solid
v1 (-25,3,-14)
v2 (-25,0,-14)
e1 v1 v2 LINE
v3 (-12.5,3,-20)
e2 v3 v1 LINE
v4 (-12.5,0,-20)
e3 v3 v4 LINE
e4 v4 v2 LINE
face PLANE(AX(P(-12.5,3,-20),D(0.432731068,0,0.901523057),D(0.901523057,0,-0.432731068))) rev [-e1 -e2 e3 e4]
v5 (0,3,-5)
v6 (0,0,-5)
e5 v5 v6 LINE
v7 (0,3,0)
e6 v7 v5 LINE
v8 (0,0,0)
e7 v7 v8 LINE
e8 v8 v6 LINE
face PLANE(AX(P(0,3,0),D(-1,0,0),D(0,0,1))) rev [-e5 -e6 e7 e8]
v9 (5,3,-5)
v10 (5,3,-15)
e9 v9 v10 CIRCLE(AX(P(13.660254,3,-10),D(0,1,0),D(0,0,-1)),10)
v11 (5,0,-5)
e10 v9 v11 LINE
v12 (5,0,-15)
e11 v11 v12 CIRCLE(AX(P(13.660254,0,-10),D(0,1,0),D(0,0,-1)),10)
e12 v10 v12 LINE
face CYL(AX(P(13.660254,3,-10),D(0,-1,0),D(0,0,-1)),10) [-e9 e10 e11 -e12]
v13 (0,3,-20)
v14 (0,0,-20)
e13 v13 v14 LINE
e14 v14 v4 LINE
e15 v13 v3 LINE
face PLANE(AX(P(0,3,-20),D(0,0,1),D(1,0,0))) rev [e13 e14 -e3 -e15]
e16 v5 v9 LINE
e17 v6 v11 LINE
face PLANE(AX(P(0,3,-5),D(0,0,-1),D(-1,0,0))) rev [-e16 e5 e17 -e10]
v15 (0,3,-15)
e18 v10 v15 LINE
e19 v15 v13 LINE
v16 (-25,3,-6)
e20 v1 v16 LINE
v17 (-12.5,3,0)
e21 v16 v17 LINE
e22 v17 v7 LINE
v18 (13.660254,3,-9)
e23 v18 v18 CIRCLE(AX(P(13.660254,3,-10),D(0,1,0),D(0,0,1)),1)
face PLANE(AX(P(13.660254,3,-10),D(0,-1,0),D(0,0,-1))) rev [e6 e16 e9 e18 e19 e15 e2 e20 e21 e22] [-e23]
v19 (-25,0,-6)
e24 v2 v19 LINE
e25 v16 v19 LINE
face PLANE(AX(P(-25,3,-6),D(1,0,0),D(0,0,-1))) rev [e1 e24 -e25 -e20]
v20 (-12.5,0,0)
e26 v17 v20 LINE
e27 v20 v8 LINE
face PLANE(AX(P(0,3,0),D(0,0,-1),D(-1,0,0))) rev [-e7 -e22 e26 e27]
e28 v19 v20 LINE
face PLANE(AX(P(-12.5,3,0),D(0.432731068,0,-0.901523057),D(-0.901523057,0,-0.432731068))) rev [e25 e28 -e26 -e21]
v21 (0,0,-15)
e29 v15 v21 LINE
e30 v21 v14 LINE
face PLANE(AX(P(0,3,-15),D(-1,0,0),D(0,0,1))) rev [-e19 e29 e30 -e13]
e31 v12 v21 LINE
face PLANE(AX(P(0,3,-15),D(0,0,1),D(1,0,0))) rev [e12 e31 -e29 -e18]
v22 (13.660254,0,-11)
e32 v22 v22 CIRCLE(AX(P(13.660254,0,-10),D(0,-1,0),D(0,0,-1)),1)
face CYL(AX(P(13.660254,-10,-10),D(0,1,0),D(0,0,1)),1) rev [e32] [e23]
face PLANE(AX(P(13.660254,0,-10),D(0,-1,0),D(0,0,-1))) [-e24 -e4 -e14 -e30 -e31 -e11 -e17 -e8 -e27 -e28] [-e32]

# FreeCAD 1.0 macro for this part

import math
import FreeCAD as App
import Part
import Sketcher
from FreeCAD import Vector

doc = App.newDocument("Part")
params = doc.addObject("Spreadsheet::Sheet", "Params")
for row, (alias, value) in enumerate([
    ("sketch1_radius", "10 mm"),
    ("sketch1_width", "5 mm"),
    ("sketch1_height", "8 mm"),
    ("sketch1_width2", "12.5 mm"),
    ("pad1_length", "3 mm"),
    ("sketch2_diameter", "2 mm"),
    ("pocket1_length", "13 mm"),
], start=1):
    params.set(f"A{row}", alias)
    params.set(f"B{row}", "=" + value)
    params.setAlias(f"B{row}", alias)

body = doc.addObject("PartDesign::Body", "Body")

# Sketch on XZ plane
sketch1 = doc.addObject("Sketcher::SketchObject", "Sketch")
body.addObject(sketch1)
sketch1.AttachmentSupport = (doc.XZ_Plane, [""])
sketch1.MapMode = "FlatFace"
sketch1.addGeometry([
    Part.LineSegment(Vector(-25, -6, 0), Vector(-12, 0, 0)),  # 0
    Part.LineSegment(Vector(-12, 0, 0), Vector(0, 0, 0)),  # 1
    Part.LineSegment(Vector(0, 0, 0), Vector(0, -5, 0)),  # 2
    Part.LineSegment(Vector(0, -5, 0), Vector(5, -5, 0)),  # 3
    Part.ArcOfCircle(Part.Circle(Vector(14, -10, 0), Vector(0, 0, 1), 10), math.radians(-150), math.radians(150)),  # 4
    Part.LineSegment(Vector(5, -15, 0), Vector(0, -15, 0)),  # 5
    Part.LineSegment(Vector(0, -15, 0), Vector(0, -20, 0)),  # 6
    Part.LineSegment(Vector(0, -20, 0), Vector(-12, -20, 0)),  # 7
    Part.LineSegment(Vector(-12, -20, 0), Vector(-25, -14, 0)),  # 8
    Part.LineSegment(Vector(-25, -14, 0), Vector(-25, -6, 0)),  # 9
], False)
sketch1.addConstraint([
    Sketcher.Constraint("Coincident", 0, 2, 1, 1),
    Sketcher.Constraint("Coincident", 1, 2, 2, 1),
    Sketcher.Constraint("Coincident", 2, 2, 3, 1),
    Sketcher.Constraint("Coincident", 3, 2, 4, 2),
    Sketcher.Constraint("Coincident", 4, 1, 5, 1),
    Sketcher.Constraint("Coincident", 5, 2, 6, 1),
    Sketcher.Constraint("Coincident", 6, 2, 7, 1),
    Sketcher.Constraint("Coincident", 7, 2, 8, 1),
    Sketcher.Constraint("Coincident", 8, 2, 9, 1),
    Sketcher.Constraint("Coincident", 9, 2, 0, 1),
    Sketcher.Constraint("Horizontal", 1),
    Sketcher.Constraint("Vertical", 2),
    Sketcher.Constraint("Horizontal", 3),
    Sketcher.Constraint("Horizontal", 5),
    Sketcher.Constraint("Vertical", 6),
    Sketcher.Constraint("Horizontal", 7),
    Sketcher.Constraint("Vertical", 9),
    Sketcher.Constraint("Coincident", 1, 2, -1, 1),
    Sketcher.Constraint("PointOnObject", 5, 2, -2),
    Sketcher.Constraint("Vertical", 3, 2, 4, 1),
    Sketcher.Constraint("Vertical", 0, 2, 7, 2),
    Sketcher.Constraint("Equal", 5, 2),
    Sketcher.Constraint("Equal", 2, 6),
    Sketcher.Constraint("Equal", 0, 8),
    Sketcher.Constraint("Radius", 4, 10.0),
    Sketcher.Constraint("DistanceX", 3, 1, 3, 2, 5.0),
    Sketcher.Constraint("DistanceY", 9, 1, 9, 2, 8.0),
    Sketcher.Constraint("DistanceX", 1, 1, 1, 2, 12.5),
    Sketcher.Constraint("DistanceY", 4, 3, -1, 1, 10.0),
    Sketcher.Constraint("DistanceX", 8, 2, -1, 1, 25.0),
])
sketch1.setExpression("Constraints[24]", "Params.sketch1_radius")
sketch1.setExpression("Constraints[25]", "Params.sketch1_width")
sketch1.setExpression("Constraints[26]", "Params.sketch1_height")
sketch1.setExpression("Constraints[27]", "Params.sketch1_width2")
pad1 = doc.addObject("PartDesign::Pad", "Pad")
body.addObject(pad1)
pad1.Profile = sketch1
pad1.setExpression("Length", "Params.pad1_length")
pad1.Reversed = True

# Sketch on XZ plane
sketch2 = doc.addObject("Sketcher::SketchObject", "Sketch001")
body.addObject(sketch2)
sketch2.AttachmentSupport = (doc.XZ_Plane, [""])
sketch2.MapMode = "FlatFace"
sketch2.AttachmentOffset = App.Placement(Vector(0, 0, -3), App.Rotation())
sketch2.addGeometry(Part.Circle(Vector(13.7, -10, 0), Vector(0, 0, 1), 1), False)
sketch2.addConstraint([
    Sketcher.Constraint("Diameter", 0, 2.0),
    Sketcher.Constraint("DistanceY", 0, 3, -1, 1, 10.0),
    Sketcher.Constraint("DistanceX", -1, 1, 0, 3, 13.660254),
])
sketch2.setExpression("Constraints[0]", "Params.sketch2_diameter")
pocket1 = doc.addObject("PartDesign::Pocket", "Pocket")
body.addObject(pocket1)
pocket1.Profile = sketch2
pocket1.setExpression("Length", "Params.pocket1_length")
pocket1.Reversed = True

doc.recompute()
